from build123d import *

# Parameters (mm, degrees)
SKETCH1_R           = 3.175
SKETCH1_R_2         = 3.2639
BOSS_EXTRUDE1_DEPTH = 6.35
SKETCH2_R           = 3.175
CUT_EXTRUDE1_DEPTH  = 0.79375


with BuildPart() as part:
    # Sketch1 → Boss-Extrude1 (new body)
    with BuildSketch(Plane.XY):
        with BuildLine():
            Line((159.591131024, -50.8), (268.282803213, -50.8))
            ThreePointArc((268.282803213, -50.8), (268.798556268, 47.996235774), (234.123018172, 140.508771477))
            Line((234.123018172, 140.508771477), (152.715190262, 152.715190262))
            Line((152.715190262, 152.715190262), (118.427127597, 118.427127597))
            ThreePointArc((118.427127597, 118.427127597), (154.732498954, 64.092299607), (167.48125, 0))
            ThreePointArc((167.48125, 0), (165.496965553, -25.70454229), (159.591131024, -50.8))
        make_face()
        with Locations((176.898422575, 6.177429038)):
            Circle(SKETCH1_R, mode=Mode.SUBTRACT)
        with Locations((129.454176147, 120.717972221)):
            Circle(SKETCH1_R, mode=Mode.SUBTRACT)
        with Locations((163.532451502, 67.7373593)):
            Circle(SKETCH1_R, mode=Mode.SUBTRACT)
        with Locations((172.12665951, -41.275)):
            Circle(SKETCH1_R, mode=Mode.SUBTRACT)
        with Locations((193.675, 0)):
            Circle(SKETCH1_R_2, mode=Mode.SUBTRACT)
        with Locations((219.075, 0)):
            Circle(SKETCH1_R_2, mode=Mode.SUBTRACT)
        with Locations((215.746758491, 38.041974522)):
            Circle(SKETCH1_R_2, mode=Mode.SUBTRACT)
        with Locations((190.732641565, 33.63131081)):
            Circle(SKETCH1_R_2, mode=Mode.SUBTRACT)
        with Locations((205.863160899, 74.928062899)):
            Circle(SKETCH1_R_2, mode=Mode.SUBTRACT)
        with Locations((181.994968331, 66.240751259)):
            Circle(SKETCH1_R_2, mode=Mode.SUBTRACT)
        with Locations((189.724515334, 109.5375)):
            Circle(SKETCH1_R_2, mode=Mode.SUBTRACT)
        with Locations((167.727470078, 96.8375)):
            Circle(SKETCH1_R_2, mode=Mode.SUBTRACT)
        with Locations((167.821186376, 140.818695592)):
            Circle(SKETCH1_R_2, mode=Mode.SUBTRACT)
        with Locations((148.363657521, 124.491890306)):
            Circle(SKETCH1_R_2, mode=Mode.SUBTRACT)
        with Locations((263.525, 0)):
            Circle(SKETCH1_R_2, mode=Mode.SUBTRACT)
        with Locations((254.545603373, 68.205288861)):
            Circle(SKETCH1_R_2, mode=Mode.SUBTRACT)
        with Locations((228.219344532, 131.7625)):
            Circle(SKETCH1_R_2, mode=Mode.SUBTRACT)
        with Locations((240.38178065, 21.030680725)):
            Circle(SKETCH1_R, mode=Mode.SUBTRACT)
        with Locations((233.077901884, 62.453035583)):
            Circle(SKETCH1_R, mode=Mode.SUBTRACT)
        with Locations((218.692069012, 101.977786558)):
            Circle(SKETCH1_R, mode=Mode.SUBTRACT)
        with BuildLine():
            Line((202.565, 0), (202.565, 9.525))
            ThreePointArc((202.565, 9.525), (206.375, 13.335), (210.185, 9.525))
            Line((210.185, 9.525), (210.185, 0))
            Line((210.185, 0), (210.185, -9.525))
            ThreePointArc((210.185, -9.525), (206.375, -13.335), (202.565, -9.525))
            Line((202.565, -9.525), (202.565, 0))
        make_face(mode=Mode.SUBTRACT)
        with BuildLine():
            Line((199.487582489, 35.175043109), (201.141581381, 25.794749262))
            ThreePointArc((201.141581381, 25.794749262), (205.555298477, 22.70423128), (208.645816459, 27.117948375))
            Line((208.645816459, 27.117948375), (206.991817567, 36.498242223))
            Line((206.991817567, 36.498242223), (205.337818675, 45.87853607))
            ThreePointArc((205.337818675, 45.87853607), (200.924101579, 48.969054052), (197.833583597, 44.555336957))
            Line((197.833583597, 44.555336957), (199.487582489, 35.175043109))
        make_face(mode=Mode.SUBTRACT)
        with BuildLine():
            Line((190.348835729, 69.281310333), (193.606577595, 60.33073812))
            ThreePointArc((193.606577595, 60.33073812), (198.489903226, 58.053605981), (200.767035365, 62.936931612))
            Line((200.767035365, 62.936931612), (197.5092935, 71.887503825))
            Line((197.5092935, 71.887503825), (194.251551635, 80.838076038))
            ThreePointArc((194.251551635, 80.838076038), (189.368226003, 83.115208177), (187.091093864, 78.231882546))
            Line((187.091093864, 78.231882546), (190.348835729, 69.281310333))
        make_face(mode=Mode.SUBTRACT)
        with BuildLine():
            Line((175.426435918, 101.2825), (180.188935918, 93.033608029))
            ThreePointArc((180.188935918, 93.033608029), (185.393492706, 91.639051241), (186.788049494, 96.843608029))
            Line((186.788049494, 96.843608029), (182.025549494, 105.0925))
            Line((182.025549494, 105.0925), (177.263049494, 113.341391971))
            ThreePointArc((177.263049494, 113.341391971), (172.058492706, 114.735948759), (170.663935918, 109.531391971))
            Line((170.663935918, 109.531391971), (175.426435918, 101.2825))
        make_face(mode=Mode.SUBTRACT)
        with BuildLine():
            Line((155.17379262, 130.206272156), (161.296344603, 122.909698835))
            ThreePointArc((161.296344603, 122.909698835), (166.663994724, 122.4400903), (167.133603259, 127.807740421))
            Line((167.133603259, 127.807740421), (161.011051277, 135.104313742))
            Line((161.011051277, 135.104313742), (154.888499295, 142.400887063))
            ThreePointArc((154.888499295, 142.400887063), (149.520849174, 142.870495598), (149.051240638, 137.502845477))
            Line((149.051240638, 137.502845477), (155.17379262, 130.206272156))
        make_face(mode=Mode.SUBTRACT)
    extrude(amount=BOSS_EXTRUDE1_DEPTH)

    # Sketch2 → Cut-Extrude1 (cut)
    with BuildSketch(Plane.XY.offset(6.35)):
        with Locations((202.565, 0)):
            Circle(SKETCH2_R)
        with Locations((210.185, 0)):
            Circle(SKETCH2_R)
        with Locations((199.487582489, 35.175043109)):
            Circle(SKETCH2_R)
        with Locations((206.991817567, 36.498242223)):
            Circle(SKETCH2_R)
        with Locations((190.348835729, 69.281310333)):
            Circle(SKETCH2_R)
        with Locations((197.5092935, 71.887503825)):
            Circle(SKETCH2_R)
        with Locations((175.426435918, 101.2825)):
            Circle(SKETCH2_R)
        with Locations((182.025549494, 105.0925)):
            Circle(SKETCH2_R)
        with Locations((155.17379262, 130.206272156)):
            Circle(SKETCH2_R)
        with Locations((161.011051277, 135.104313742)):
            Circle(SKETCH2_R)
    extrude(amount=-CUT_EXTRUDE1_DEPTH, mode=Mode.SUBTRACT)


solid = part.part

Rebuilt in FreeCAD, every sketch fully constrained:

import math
import FreeCAD as App
import Part
import Sketcher
Q = App.Units.Quantity

doc = App.newDocument("Part")
body = doc.addObject("PartDesign::Body", "Body")

sketch1 = body.newObject("Sketcher::SketchObject", "Sketch")
sketch1.AttachmentSupport = (doc.getObject("XY_Plane"), [""])
sketch1.MapMode = "FlatFace"
sketch1.addGeometry([
    Part.LineSegment(App.Vector(159.6, -50.8, 0), App.Vector(268.3, -50.8, 0)),
    Part.ArcOfCircle(Part.Circle(App.Vector(0, 0, 0), App.Vector(0, 0, 1), 273), math.radians(-11), math.radians(31)),
    Part.LineSegment(App.Vector(234.1, 140.5, 0), App.Vector(152.7, 152.7, 0)),
    Part.LineSegment(App.Vector(152.7, 152.7, 0), App.Vector(118.4, 118.4, 0)),
    Part.ArcOfCircle(Part.Circle(App.Vector(0, 0, 0), App.Vector(0, 0, 1), 167.5), math.radians(0), math.radians(45)),
    Part.ArcOfCircle(Part.Circle(App.Vector(0, 0, 0), App.Vector(0, 0, 1), 167.5), math.radians(-17.66), math.radians(0)),
    Part.Circle(App.Vector(172.1, -41.3, 0), App.Vector(0, 0, 1), 3.2),
    Part.Circle(App.Vector(193.7, 0, 0), App.Vector(0, 0, 1), 3.3),
    Part.Circle(App.Vector(176.9, 6.2, 0), App.Vector(0, 0, 1), 3.2),
    Part.Circle(App.Vector(190.7, 33.6, 0), App.Vector(0, 0, 1), 3.3),
    Part.LineSegment(App.Vector(202.6, -9.5, 0), App.Vector(202.6, 9.5, 0)),
    Part.ArcOfCircle(Part.Circle(App.Vector(206.4, 9.5, 0), App.Vector(0, 0, 1), 3.8), math.radians(0), math.radians(180)),
    Part.LineSegment(App.Vector(210.2, 9.5, 0), App.Vector(210.2, -9.5, 0)),
    Part.ArcOfCircle(Part.Circle(App.Vector(206.4, -9.5, 0), App.Vector(0, 0, 1), 3.8), math.radians(180), math.radians(360)),
    Part.Circle(App.Vector(219.1, 0, 0), App.Vector(0, 0, 1), 3.3),
    Part.Circle(App.Vector(263.5, 0, 0), App.Vector(0, 0, 1), 3.3),
    Part.LineSegment(App.Vector(201.1, 25.8, 0), App.Vector(199.5, 35.2, 0)),
    Part.LineSegment(App.Vector(199.5, 35.2, 0), App.Vector(197.8, 44.6, 0)),
    Part.ArcOfCircle(Part.Circle(App.Vector(201.6, 45.2, 0), App.Vector(0, 0, 1), 3.8), math.radians(10), math.radians(190)),
    Part.LineSegment(App.Vector(205.3, 45.9, 0), App.Vector(207, 36.5, 0)),
    Part.LineSegment(App.Vector(207, 36.5, 0), App.Vector(208.6, 27.1, 0)),
    Part.ArcOfCircle(Part.Circle(App.Vector(204.9, 26.5, 0), App.Vector(0, 0, 1), 3.8), math.radians(-170), math.radians(10)),
    Part.Circle(App.Vector(215.7, 38, 0), App.Vector(0, 0, 1), 3.3),
    Part.Circle(App.Vector(240.4, 21, 0), App.Vector(0, 0, 1), 3.2),
    Part.Circle(App.Vector(163.5, 67.7, 0), App.Vector(0, 0, 1), 3.2),
    Part.Circle(App.Vector(182, 66.2, 0), App.Vector(0, 0, 1), 3.3),
    Part.LineSegment(App.Vector(193.6, 60.3, 0), App.Vector(190.3, 69.3, 0)),
    Part.LineSegment(App.Vector(190.3, 69.3, 0), App.Vector(187.1, 78.2, 0)),
    Part.ArcOfCircle(Part.Circle(App.Vector(190.7, 79.5, 0), App.Vector(0, 0, 1), 3.8), math.radians(20), math.radians(200)),
    Part.LineSegment(App.Vector(194.3, 80.8, 0), App.Vector(200.8, 62.9, 0)),
    Part.ArcOfCircle(Part.Circle(App.Vector(197.2, 61.6, 0), App.Vector(0, 0, 1), 3.8), math.radians(-160), math.radians(20)),
    Part.Circle(App.Vector(167.7, 96.8, 0), App.Vector(0, 0, 1), 3.3),
    Part.Circle(App.Vector(129.5, 120.7, 0), App.Vector(0, 0, 1), 3.2),
    Part.Circle(App.Vector(148.4, 124.5, 0), App.Vector(0, 0, 1), 3.3),
    Part.LineSegment(App.Vector(161.3, 122.9, 0), App.Vector(155.2, 130.2, 0)),
    Part.LineSegment(App.Vector(155.2, 130.2, 0), App.Vector(149.1, 137.5, 0)),
    Part.ArcOfCircle(Part.Circle(App.Vector(152, 140, 0), App.Vector(0, 0, 1), 3.8), math.radians(40), math.radians(220)),
    Part.LineSegment(App.Vector(154.9, 142.4, 0), App.Vector(167.1, 127.8, 0)),
    Part.ArcOfCircle(Part.Circle(App.Vector(164.2, 125.4, 0), App.Vector(0, 0, 1), 3.8), math.radians(-140), math.radians(40)),
    Part.ArcOfCircle(Part.Circle(App.Vector(183.5, 94.9, 0), App.Vector(0, 0, 1), 3.8), math.radians(-150), math.radians(30)),
    Part.LineSegment(App.Vector(180.2, 93, 0), App.Vector(170.7, 109.5, 0)),
    Part.ArcOfCircle(Part.Circle(App.Vector(174, 111.4, 0), App.Vector(0, 0, 1), 3.8), math.radians(30), math.radians(210)),
    Part.LineSegment(App.Vector(177.3, 113.3, 0), App.Vector(186.8, 96.8, 0)),
    Part.Circle(App.Vector(189.7, 109.5, 0), App.Vector(0, 0, 1), 3.3),
    Part.Circle(App.Vector(167.8, 140.8, 0), App.Vector(0, 0, 1), 3.3),
    Part.Circle(App.Vector(205.9, 74.9, 0), App.Vector(0, 0, 1), 3.3),
    Part.Circle(App.Vector(233.1, 62.5, 0), App.Vector(0, 0, 1), 3.2),
    Part.Circle(App.Vector(254.5, 68.2, 0), App.Vector(0, 0, 1), 3.3),
    Part.Circle(App.Vector(218.7, 102, 0), App.Vector(0, 0, 1), 3.2),
    Part.Circle(App.Vector(228.2, 131.8, 0), App.Vector(0, 0, 1), 3.3),
], False)
sketch1.addConstraint([
    Sketcher.Constraint("Coincident", 0, 2, 1, 1),
    Sketcher.Constraint("Coincident", 1, 2, 2, 1),
    Sketcher.Constraint("Coincident", 2, 2, 3, 1),
    Sketcher.Constraint("Coincident", 3, 2, 4, 2),
    Sketcher.Constraint("Tangent", 4, 1, 5, 2),
    Sketcher.Constraint("Coincident", 5, 1, 0, 1),
    Sketcher.Constraint("Tangent", 10, 2, 11, 2),
    Sketcher.Constraint("Tangent", 11, 1, 12, 1),
    Sketcher.Constraint("Tangent", 12, 2, 13, 2),
    Sketcher.Constraint("Tangent", 13, 1, 10, 1),
    Sketcher.Constraint("Coincident", 16, 2, 17, 1),
    Sketcher.Constraint("Tangent", 17, 2, 18, 2),
    Sketcher.Constraint("Tangent", 18, 1, 19, 1),
    Sketcher.Constraint("Coincident", 19, 2, 20, 1),
    Sketcher.Constraint("Tangent", 20, 2, 21, 2),
    Sketcher.Constraint("Tangent", 21, 1, 16, 1),
    Sketcher.Constraint("Coincident", 26, 2, 27, 1),
    Sketcher.Constraint("Tangent", 27, 2, 28, 2),
    Sketcher.Constraint("Tangent", 28, 1, 29, 1),
    Sketcher.Constraint("Tangent", 29, 2, 30, 2),
    Sketcher.Constraint("Tangent", 30, 1, 26, 1),
    Sketcher.Constraint("Coincident", 34, 2, 35, 1),
    Sketcher.Constraint("Tangent", 35, 2, 36, 2),
    Sketcher.Constraint("Tangent", 36, 1, 37, 1),
    Sketcher.Constraint("Tangent", 37, 2, 38, 2),
    Sketcher.Constraint("Tangent", 38, 1, 34, 1),
    Sketcher.Constraint("Tangent", 39, 1, 40, 1),
    Sketcher.Constraint("Tangent", 40, 2, 41, 2),
    Sketcher.Constraint("Tangent", 41, 1, 42, 1),
    Sketcher.Constraint("Tangent", 42, 2, 39, 2),
    Sketcher.Constraint("Horizontal", 0),
    Sketcher.Constraint("Vertical", 10),
    Sketcher.Constraint("Vertical", 12),
    Sketcher.Constraint("Coincident", 1, 3, -1, 1),
    Sketcher.Constraint("Coincident", 4, 3, -1, 1),
    Sketcher.Constraint("Equal", 4, 5),
    Sketcher.Constraint("Equal", 6, 8),
    Sketcher.Constraint("Equal", 7, 9),
    Sketcher.Constraint("Equal", 9, 14),
    Sketcher.Constraint("Equal", 14, 15),
    Sketcher.Constraint("Equal", 13, 18),
    Sketcher.Constraint("Equal", 18, 21),
    Sketcher.Constraint("Equal", 15, 22),
    Sketcher.Constraint("Equal", 8, 23),
    Sketcher.Constraint("Equal", 23, 24),
    Sketcher.Constraint("Equal", 22, 25),
    Sketcher.Constraint("Equal", 21, 28),
    Sketcher.Constraint("Equal", 28, 30),
    Sketcher.Constraint("Equal", 25, 31),
    Sketcher.Constraint("Equal", 24, 32),
    Sketcher.Constraint("Equal", 31, 33),
    Sketcher.Constraint("Equal", 30, 36),
    Sketcher.Constraint("Equal", 36, 38),
    Sketcher.Constraint("Equal", 38, 39),
    Sketcher.Constraint("Equal", 39, 41),
    Sketcher.Constraint("Equal", 33, 43),
    Sketcher.Constraint("Equal", 43, 44),
    Sketcher.Constraint("Equal", 44, 45),
    Sketcher.Constraint("Equal", 32, 46),
    Sketcher.Constraint("Equal", 45, 47),
    Sketcher.Constraint("Equal", 46, 48),
    Sketcher.Constraint("Equal", 47, 49),
    Sketcher.Constraint("PointOnObject", 7, 3, -1),
    Sketcher.Constraint("PointOnObject", 14, 3, -1),
    Sketcher.Constraint("PointOnObject", 15, 3, -1),
    Sketcher.Constraint("PointOnObject", 4, 1, -1),
    Sketcher.Constraint("Parallel", 16, 17),
    Sketcher.Constraint("Parallel", 17, 19),
    Sketcher.Constraint("Parallel", 26, 27),
    Sketcher.Constraint("Parallel", 34, 35),
    Sketcher.Constraint("Equal", 16, 17),
    Sketcher.Constraint("Equal", 17, 19),
    Sketcher.Constraint("Equal", 20, 26),
    Sketcher.Constraint("Equal", 26, 27),
    Sketcher.Constraint("Equal", 27, 34),
    Sketcher.Constraint("Equal", 34, 35),
    Sketcher.Constraint("Equal", 37, 40),
    Sketcher.Constraint("Diameter", 6, Q("0.25 in")),
    Sketcher.Constraint("Radius", 1, Q("10.75 in")),
    Sketcher.Constraint("Radius", 11, Q("0.15 in")),
    Sketcher.Constraint("Diameter", 7, Q("0.257 in")),
    Sketcher.Constraint("DistanceY", 0, 2, -1, 1, Q("2 in")),
    Sketcher.Constraint("Angle", 3, Q("-135 deg")),
    Sketcher.Constraint("Angle", 16, Q("100 deg")),
    Sketcher.Constraint("Angle", 26, Q("110 deg")),
    Sketcher.Constraint("Angle", 34, Q("130 deg")),
    Sketcher.Constraint("Angle", 40, Q("120 deg")),
    Sketcher.Constraint("Radius", 4, Q("6.59375 in")),
    Sketcher.Constraint("DistanceY", 10, 1, 10, 2, Q("0.75 in")),
    Sketcher.Constraint("Distance", 29, Q("0.75 in")),
    Sketcher.Constraint("DistanceY", 6, 3, -1, 1, Q("1.625 in")),
    Sketcher.Constraint("DistanceX", -1, 1, 7, 3, Q("7.625 in")),
    Sketcher.Constraint("DistanceX", -1, 1, 11, 3, Q("8.125 in")),
    Sketcher.Constraint("DistanceY", -1, 1, 11, 3, Q("0.375 in")),
    Sketcher.Constraint("DistanceX", -1, 1, 14, 3, Q("8.625 in")),
    Sketcher.Constraint("DistanceX", -1, 1, 15, 3, Q("10.375 in")),
    Sketcher.Constraint("DistanceY", -1, 1, 31, 3, Q("3.8125 in")),
    Sketcher.Constraint("DistanceY", -1, 1, 43, 3, Q("4.3125 in")),
    Sketcher.Constraint("DistanceY", -1, 1, 49, 3, Q("5.1875 in")),
    Sketcher.Constraint("DistanceX", -1, 1, 18, 3, 201.585701),
    Sketcher.Constraint("DistanceX", -1, 1, 46, 3, 233.077902),
    Sketcher.Constraint("DistanceX", -1, 1, 36, 1, 154.888499),
    Sketcher.Constraint("DistanceY", -1, 1, 38, 1, 122.909699),
    Sketcher.Constraint("DistanceX", -1, 1, 6, 3, 172.12666),
    Sketcher.Constraint("DistanceY", -1, 1, 8, 3, 6.177429),
    Sketcher.Constraint("DistanceX", -1, 1, 9, 3, 190.732642),
    Sketcher.Constraint("DistanceY", -1, 1, 9, 3, 33.631311),
    Sketcher.Constraint("DistanceY", -1, 1, 21, 3, 26.456349),
    Sketcher.Constraint("DistanceX", -1, 1, 22, 3, 215.746758),
    Sketcher.Constraint("DistanceX", -1, 1, 23, 3, 240.381781),
    Sketcher.Constraint("DistanceY", -1, 1, 23, 3, 21.030681),
    Sketcher.Constraint("DistanceX", -1, 1, 24, 3, 163.532452),
    Sketcher.Constraint("DistanceY", -1, 1, 24, 3, 67.737359),
    Sketcher.Constraint("DistanceX", -1, 1, 25, 3, 181.994968),
    Sketcher.Constraint("DistanceY", -1, 1, 25, 3, 66.240751),
    Sketcher.Constraint("DistanceY", -1, 1, 28, 3, 79.534979),
    Sketcher.Constraint("DistanceX", -1, 1, 31, 3, 167.72747),
    Sketcher.Constraint("DistanceY", -1, 1, 33, 3, 124.49189),
    Sketcher.Constraint("DistanceY", -1, 1, 39, 3, 94.938608),
    Sketcher.Constraint("DistanceX", -1, 1, 45, 3, 205.863161),
    Sketcher.Constraint("DistanceY", -1, 1, 47, 3, 68.205289),
    Sketcher.Constraint("DistanceX", -1, 1, 48, 3, 218.692069),
    Sketcher.Constraint("DistanceX", -1, 1, 1, 2, 234.123018),
    Sketcher.Constraint("DistanceX", -1, 1, 2, 2, 152.71519),
    Sketcher.Constraint("DistanceY", -1, 1, 2, 2, 152.71519),
    Sketcher.Constraint("DistanceX", -1, 1, 28, 1, 194.251552),
    Sketcher.Constraint("DistanceX", -1, 1, 41, 1, 177.263049),
    Sketcher.Constraint("DistanceX", -1, 1, 8, 3, 176.898423),
    Sketcher.Constraint("DistanceY", -1, 1, 22, 3, 38.041975),
    Sketcher.Constraint("DistanceX", -1, 1, 32, 3, 129.454176),
    Sketcher.Constraint("DistanceY", -1, 1, 32, 3, 120.717972),
    Sketcher.Constraint("DistanceX", -1, 1, 33, 3, 148.363658),
    Sketcher.Constraint("DistanceX", -1, 1, 43, 3, 189.724515),
    Sketcher.Constraint("DistanceX", -1, 1, 44, 3, 167.821186),
    Sketcher.Constraint("DistanceY", -1, 1, 44, 3, 140.818696),
    Sketcher.Constraint("DistanceY", -1, 1, 45, 3, 74.928063),
    Sketcher.Constraint("DistanceY", -1, 1, 46, 3, 62.453036),
    Sketcher.Constraint("DistanceX", -1, 1, 47, 3, 254.545603),
    Sketcher.Constraint("DistanceY", -1, 1, 48, 3, 101.977787),
    Sketcher.Constraint("DistanceX", -1, 1, 49, 3, 228.219345),
])
pad1 = body.newObject("PartDesign::Pad", "Pad")
pad1.Profile = sketch1
pad1.Length = Q("0.25 in")

sketch2 = body.newObject("Sketcher::SketchObject", "Sketch001")
sketch2.AttachmentSupport = (doc.getObject("XY_Plane"), [""])
sketch2.MapMode = "FlatFace"
sketch2.AttachmentOffset = App.Placement(App.Vector(0, 0, 0.25 * 25.4), App.Rotation())
sketch2.addGeometry([
    Part.Circle(App.Vector(202.6, 0, 0), App.Vector(0, 0, 1), 3.2),
    Part.Circle(App.Vector(210.2, 0, 0), App.Vector(0, 0, 1), 3.2),
    Part.Circle(App.Vector(199.5, 35.2, 0), App.Vector(0, 0, 1), 3.2),
    Part.Circle(App.Vector(207, 36.5, 0), App.Vector(0, 0, 1), 3.2),
    Part.Circle(App.Vector(190.3, 69.3, 0), App.Vector(0, 0, 1), 3.2),
    Part.Circle(App.Vector(197.5, 71.9, 0), App.Vector(0, 0, 1), 3.2),
    Part.Circle(App.Vector(175.4, 101.3, 0), App.Vector(0, 0, 1), 3.2),
    Part.Circle(App.Vector(182, 105.1, 0), App.Vector(0, 0, 1), 3.2),
    Part.Circle(App.Vector(155.2, 130.2, 0), App.Vector(0, 0, 1), 3.2),
    Part.Circle(App.Vector(161, 135.1, 0), App.Vector(0, 0, 1), 3.2),
], False)
sketch2.addConstraint([
    Sketcher.Constraint("Equal", 0, 1),
    Sketcher.Constraint("Equal", 1, 2),
    Sketcher.Constraint("Equal", 2, 3),
    Sketcher.Constraint("Equal", 3, 4),
    Sketcher.Constraint("Equal", 4, 5),
    Sketcher.Constraint("Equal", 5, 6),
    Sketcher.Constraint("Equal", 6, 7),
    Sketcher.Constraint("Equal", 7, 8),
    Sketcher.Constraint("Equal", 8, 9),
    Sketcher.Constraint("PointOnObject", 0, 3, -1),
    Sketcher.Constraint("PointOnObject", 1, 3, -1),
    Sketcher.Constraint("Diameter", 0, Q("0.25 in")),
    Sketcher.Constraint("DistanceX", 0, 3, 1, 3, Q("0.3 in")),
    Sketcher.Constraint("DistanceY", 6, 3, 7, 3, Q("0.15 in")),
    Sketcher.Constraint("DistanceX", -1, 1, 0, 3, Q("7.975 in")),
    Sketcher.Constraint("DistanceY", -1, 1, 6, 3, Q("3.9875 in")),
    Sketcher.Constraint("DistanceY", 2, 3, 3, 3, 1.323199),
    Sketcher.Constraint("DistanceX", 6, 3, 4, 3, 14.9224),
    Sketcher.Constraint("DistanceX", 8, 3, 5, 3, 42.335501),
    Sketcher.Constraint("DistanceX", 9, 3, 7, 3, 21.014498),
    Sketcher.Constraint("DistanceY", -1, 1, 4, 3, 69.28131),
    Sketcher.Constraint("DistanceX", -1, 1, 7, 3, 182.025549),
    Sketcher.Constraint("DistanceX", 4, 3, 3, 3, 16.642982),
    Sketcher.Constraint("DistanceY", 3, 3, 4, 3, 32.783068),
    Sketcher.Constraint("DistanceY", 3, 3, 5, 3, 35.389262),
    Sketcher.Constraint("DistanceX", 5, 3, 2, 3, 1.978289),
    Sketcher.Constraint("DistanceX", 7, 3, 3, 3, 24.966268),
    Sketcher.Constraint("DistanceY", 4, 3, 8, 3, 60.924962),
    Sketcher.Constraint("DistanceX", 8, 3, 9, 3, 5.837259),
    Sketcher.Constraint("DistanceY", 8, 3, 9, 3, 4.898042),
])
pocket1 = body.newObject("PartDesign::Pocket", "Pocket")
pocket1.Profile = sketch2
pocket1.Length = Q("0.03125 in")

doc.recompute()
